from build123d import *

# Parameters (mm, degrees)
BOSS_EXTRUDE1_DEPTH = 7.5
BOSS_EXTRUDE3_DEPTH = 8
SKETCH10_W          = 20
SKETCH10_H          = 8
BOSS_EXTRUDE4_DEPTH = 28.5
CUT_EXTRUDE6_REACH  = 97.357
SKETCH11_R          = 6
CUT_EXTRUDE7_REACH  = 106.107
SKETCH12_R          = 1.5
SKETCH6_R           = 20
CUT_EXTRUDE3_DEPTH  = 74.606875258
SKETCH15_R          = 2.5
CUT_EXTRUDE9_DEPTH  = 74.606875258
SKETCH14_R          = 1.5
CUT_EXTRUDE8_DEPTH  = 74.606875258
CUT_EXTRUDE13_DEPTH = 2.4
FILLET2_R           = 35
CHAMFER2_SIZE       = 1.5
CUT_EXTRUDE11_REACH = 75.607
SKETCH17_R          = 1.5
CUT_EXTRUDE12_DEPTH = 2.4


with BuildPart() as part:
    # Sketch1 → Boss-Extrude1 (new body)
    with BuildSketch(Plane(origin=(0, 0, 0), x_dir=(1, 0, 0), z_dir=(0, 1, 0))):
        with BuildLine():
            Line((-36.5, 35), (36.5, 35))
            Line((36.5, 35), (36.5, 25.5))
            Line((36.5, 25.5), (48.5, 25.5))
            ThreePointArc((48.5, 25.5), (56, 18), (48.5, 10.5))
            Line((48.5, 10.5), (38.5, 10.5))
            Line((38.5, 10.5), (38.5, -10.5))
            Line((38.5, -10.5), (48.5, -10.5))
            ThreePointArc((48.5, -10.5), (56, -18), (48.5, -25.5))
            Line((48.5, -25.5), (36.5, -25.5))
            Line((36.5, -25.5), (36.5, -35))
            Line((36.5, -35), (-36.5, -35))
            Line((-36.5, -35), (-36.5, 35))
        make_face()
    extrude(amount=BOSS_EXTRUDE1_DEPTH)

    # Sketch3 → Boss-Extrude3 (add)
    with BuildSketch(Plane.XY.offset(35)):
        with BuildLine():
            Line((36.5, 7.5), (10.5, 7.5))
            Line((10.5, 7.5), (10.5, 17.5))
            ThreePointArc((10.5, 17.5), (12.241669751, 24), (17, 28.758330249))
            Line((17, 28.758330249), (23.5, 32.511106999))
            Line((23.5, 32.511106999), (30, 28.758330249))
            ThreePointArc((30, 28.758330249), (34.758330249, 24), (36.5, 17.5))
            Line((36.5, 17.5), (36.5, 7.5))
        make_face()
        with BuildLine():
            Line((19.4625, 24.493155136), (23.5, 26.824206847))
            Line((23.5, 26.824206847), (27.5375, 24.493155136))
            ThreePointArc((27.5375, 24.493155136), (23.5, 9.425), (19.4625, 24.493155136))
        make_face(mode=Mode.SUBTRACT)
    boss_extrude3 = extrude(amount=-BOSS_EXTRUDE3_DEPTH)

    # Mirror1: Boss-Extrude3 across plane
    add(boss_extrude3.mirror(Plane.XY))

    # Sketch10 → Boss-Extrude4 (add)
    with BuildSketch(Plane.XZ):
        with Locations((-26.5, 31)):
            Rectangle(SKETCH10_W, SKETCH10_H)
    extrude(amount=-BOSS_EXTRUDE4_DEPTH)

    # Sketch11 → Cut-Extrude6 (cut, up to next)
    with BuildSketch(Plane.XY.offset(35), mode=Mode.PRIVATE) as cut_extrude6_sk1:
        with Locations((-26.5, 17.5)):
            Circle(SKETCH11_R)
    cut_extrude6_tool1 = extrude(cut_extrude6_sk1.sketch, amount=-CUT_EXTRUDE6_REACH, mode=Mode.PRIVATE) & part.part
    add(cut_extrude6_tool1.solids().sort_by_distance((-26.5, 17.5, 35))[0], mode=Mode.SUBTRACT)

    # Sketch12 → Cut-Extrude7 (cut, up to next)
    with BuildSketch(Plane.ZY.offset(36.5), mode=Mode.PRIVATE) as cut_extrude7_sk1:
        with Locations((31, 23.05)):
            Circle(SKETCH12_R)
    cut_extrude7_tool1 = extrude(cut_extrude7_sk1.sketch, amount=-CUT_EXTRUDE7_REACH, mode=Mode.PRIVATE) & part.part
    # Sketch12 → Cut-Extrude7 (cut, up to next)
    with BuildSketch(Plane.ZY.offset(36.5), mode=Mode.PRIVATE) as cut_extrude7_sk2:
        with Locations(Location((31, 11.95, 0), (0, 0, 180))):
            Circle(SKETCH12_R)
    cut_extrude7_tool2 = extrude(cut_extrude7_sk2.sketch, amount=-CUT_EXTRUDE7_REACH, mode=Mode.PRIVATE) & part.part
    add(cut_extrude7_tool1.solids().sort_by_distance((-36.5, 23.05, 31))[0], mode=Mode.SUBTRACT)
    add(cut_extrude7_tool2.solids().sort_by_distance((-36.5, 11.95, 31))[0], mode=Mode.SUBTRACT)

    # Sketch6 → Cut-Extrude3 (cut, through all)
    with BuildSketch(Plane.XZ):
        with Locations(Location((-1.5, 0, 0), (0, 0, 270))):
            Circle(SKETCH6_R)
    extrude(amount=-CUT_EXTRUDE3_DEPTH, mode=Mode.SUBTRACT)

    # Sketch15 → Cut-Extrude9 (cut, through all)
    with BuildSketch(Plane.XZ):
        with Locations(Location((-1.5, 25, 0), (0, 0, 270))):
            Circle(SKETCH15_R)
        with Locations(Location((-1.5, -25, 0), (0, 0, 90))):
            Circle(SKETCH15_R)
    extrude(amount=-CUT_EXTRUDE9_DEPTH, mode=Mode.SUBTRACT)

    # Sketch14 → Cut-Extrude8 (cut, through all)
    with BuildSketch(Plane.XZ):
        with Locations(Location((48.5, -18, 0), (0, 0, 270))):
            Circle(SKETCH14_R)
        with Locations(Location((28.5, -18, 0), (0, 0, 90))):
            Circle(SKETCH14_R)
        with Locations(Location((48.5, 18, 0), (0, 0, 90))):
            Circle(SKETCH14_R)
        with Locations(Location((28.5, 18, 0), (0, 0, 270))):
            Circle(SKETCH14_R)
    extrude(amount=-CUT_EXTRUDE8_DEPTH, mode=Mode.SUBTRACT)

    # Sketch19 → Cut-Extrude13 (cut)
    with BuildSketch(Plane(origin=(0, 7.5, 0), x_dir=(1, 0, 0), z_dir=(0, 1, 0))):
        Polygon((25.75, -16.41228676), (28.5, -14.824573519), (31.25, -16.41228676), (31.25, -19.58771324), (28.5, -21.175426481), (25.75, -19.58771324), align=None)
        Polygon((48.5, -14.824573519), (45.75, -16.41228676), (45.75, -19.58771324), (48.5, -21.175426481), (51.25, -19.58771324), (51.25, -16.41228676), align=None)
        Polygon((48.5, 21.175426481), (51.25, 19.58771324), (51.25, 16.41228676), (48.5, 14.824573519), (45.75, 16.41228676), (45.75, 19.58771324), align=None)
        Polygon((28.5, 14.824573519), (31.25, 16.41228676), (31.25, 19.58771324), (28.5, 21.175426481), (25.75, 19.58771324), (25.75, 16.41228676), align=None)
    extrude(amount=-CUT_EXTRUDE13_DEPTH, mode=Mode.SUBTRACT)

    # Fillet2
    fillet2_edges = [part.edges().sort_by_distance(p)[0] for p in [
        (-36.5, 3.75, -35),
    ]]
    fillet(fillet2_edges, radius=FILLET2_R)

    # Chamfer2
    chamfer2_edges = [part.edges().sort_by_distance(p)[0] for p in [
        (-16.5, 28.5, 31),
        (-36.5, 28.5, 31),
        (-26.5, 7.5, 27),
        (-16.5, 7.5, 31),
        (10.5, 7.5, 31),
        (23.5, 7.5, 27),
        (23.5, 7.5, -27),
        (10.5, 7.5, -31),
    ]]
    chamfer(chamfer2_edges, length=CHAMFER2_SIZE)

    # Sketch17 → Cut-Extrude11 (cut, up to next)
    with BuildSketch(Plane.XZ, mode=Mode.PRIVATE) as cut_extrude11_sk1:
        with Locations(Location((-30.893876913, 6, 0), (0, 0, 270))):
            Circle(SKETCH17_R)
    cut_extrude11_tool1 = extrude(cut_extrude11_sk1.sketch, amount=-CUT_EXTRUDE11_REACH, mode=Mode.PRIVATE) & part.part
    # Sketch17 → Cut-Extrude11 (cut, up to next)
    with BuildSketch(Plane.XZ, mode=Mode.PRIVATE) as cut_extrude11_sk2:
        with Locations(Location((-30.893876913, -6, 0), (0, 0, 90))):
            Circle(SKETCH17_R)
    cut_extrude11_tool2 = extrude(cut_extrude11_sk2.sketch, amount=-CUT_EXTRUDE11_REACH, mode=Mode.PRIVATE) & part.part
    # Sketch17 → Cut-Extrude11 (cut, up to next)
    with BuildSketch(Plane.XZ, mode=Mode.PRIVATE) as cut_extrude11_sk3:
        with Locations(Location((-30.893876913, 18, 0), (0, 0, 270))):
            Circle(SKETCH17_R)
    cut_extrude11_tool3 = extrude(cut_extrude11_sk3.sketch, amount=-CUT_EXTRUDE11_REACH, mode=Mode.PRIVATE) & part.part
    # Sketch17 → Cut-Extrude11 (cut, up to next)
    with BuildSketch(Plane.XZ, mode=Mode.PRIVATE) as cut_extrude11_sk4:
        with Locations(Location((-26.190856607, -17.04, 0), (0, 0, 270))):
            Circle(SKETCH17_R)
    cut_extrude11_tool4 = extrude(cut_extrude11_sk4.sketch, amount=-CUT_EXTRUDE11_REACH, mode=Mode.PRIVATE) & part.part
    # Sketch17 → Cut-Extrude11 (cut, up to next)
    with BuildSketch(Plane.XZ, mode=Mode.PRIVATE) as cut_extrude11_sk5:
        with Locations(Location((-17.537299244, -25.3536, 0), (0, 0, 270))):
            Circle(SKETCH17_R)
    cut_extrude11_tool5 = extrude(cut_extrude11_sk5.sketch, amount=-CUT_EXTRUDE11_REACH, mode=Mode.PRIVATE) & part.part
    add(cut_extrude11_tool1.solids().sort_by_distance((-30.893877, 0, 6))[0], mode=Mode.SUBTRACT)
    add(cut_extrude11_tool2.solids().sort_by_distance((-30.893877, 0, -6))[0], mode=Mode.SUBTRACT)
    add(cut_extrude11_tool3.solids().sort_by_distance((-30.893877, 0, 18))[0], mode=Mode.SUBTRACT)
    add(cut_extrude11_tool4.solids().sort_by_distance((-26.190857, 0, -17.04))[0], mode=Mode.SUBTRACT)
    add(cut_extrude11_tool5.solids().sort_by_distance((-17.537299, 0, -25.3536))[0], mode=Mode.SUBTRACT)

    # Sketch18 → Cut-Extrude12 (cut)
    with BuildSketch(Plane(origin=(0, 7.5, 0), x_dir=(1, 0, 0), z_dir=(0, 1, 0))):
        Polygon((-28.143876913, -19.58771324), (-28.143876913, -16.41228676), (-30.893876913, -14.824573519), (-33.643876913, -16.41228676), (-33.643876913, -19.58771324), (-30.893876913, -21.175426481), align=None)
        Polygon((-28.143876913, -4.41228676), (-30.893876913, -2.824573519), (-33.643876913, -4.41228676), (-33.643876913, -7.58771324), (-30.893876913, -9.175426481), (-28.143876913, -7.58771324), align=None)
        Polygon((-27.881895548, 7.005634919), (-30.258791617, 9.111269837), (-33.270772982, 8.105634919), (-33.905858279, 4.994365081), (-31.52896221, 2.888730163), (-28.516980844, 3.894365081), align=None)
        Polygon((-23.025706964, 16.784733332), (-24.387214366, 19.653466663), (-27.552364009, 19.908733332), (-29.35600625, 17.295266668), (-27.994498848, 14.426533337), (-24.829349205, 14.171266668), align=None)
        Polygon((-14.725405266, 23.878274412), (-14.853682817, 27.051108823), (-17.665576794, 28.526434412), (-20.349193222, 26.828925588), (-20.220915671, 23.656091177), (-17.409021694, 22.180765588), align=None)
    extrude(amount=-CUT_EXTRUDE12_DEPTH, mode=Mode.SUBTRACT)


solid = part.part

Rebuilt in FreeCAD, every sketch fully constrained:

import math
import FreeCAD as App
import Part
import Sketcher
Q = App.Units.Quantity


def edges_at(feature, points):
    """Names of the edges that pass closest to the given points."""
    edges = feature.Shape.Edges
    near = lambda p: min(range(len(edges)), key=lambda i: edges[i].distToShape(Part.Vertex(*p))[0])
    return sorted({f"Edge{near(p) + 1}" for p in points})

doc = App.newDocument("Part")
params = doc.addObject("Spreadsheet::Sheet", "Params")
for row, (alias, value) in enumerate([
    ("sketch1_radius", "7.5 mm"),
    ("sketch1_width", "73 mm"),
    ("sketch1_width2", "12 mm"),
    ("sketch1_width3", "10 mm"),
    ("sketch1_height", "70 mm"),
    ("pad1_length", "7.5 mm"),
    ("sketch2_radius", "13 mm"),
    ("sketch2_height", "10 mm"),
    ("pad2_length", "8 mm"),
    ("sketch3_width", "20 mm"),
    ("sketch3_height", "8 mm"),
    ("pad3_length", "28.5 mm"),
    ("sketch4_diameter", "12 mm"),
    ("sketch5_diameter", "3 mm"),
    ("pocket2_length", "20 mm"),
    ("sketch6_diameter", "3 mm"),
    ("pocket3_length", "20 mm"),
    ("sketch7_diameter", "40 mm"),
    ("sketch8_diameter", "5 mm"),
    ("sketch9_diameter", "3 mm"),
    ("pocket7_length", "2.4 mm"),
    ("fillet_radius", "35 mm"),
    ("chamfer_size", "1.5 mm"),
    ("sketch11_diameter", "3 mm"),
    ("sketch12_diameter", "3 mm"),
    ("sketch13_diameter", "3 mm"),
    ("sketch14_diameter", "3 mm"),
    ("sketch15_diameter", "3 mm"),
    ("pocket13_length", "2.4 mm"),
], start=1):
    params.set(f"A{row}", alias)
    params.set(f"B{row}", "=" + value)
    params.setAlias(f"B{row}", alias)

body = doc.addObject("PartDesign::Body", "Body")

sketch1 = body.newObject("Sketcher::SketchObject", "Sketch")
sketch1.AttachmentSupport = (doc.getObject("XZ_Plane"), [""])
sketch1.MapMode = "FlatFace"
sketch1.addGeometry([
    Part.LineSegment(App.Vector(36.5, -35, 0), App.Vector(-36.5, -35, 0)),
    Part.LineSegment(App.Vector(-36.5, -35, 0), App.Vector(-36.5, 35, 0)),
    Part.LineSegment(App.Vector(-36.5, 35, 0), App.Vector(36.5, 35, 0)),
    Part.LineSegment(App.Vector(36.5, 35, 0), App.Vector(36.5, 25.5, 0)),
    Part.LineSegment(App.Vector(36.5, 25.5, 0), App.Vector(48.5, 25.5, 0)),
    Part.ArcOfCircle(Part.Circle(App.Vector(48.5, 18, 0), App.Vector(0, 0, 1), 7.5), math.radians(-90), math.radians(90)),
    Part.LineSegment(App.Vector(48.5, 10.5, 0), App.Vector(38.5, 10.5, 0)),
    Part.LineSegment(App.Vector(38.5, 10.5, 0), App.Vector(38.5, -10.5, 0)),
    Part.LineSegment(App.Vector(38.5, -10.5, 0), App.Vector(48.5, -10.5, 0)),
    Part.ArcOfCircle(Part.Circle(App.Vector(48.5, -18, 0), App.Vector(0, 0, 1), 7.5), math.radians(-90), math.radians(90)),
    Part.LineSegment(App.Vector(48.5, -25.5, 0), App.Vector(36.5, -25.5, 0)),
    Part.LineSegment(App.Vector(36.5, -25.5, 0), App.Vector(36.5, -35, 0)),
], False)
sketch1.addConstraint([
    Sketcher.Constraint("Coincident", 0, 2, 1, 1),
    Sketcher.Constraint("Coincident", 1, 2, 2, 1),
    Sketcher.Constraint("Coincident", 2, 2, 3, 1),
    Sketcher.Constraint("Coincident", 3, 2, 4, 1),
    Sketcher.Constraint("Tangent", 4, 2, 5, 2),
    Sketcher.Constraint("Tangent", 5, 1, 6, 1),
    Sketcher.Constraint("Coincident", 6, 2, 7, 1),
    Sketcher.Constraint("Coincident", 7, 2, 8, 1),
    Sketcher.Constraint("Tangent", 8, 2, 9, 2),
    Sketcher.Constraint("Tangent", 9, 1, 10, 1),
    Sketcher.Constraint("Coincident", 10, 2, 11, 1),
    Sketcher.Constraint("Coincident", 11, 2, 0, 1),
    Sketcher.Constraint("Horizontal", 0),
    Sketcher.Constraint("Vertical", 1),
    Sketcher.Constraint("Horizontal", 2),
    Sketcher.Constraint("Vertical", 3),
    Sketcher.Constraint("Horizontal", 4),
    Sketcher.Constraint("Horizontal", 6),
    Sketcher.Constraint("Vertical", 7),
    Sketcher.Constraint("Horizontal", 8),
    Sketcher.Constraint("Horizontal", 10),
    Sketcher.Constraint("Vertical", 11),
    Sketcher.Constraint("Equal", 5, 9),
    Sketcher.Constraint("Symmetric", 0, 2, 2, 2, -1, 1),
    Sketcher.Constraint("Symmetric", 5, 3, 9, 3, -1),
    Sketcher.Constraint("Vertical", 3, 2, 10, 2),
    Sketcher.Constraint("Radius", 5, Q("7.5 mm")),
    Sketcher.Constraint("DistanceX", 0, 2, 0, 1, Q("73 mm")),
    Sketcher.Constraint("DistanceX", 4, 1, 4, 2, Q("12 mm")),
    Sketcher.Constraint("DistanceX", 6, 2, 6, 1, Q("10 mm")),
    Sketcher.Constraint("DistanceY", 1, 1, 1, 2, Q("70 mm")),
    Sketcher.Constraint("DistanceY", 7, 2, 7, 1, Q("21 mm")),
])
sketch1.setExpression("Constraints[26]", "Params.sketch1_radius")
sketch1.setExpression("Constraints[27]", "Params.sketch1_width")
sketch1.setExpression("Constraints[28]", "Params.sketch1_width2")
sketch1.setExpression("Constraints[29]", "Params.sketch1_width3")
sketch1.setExpression("Constraints[30]", "Params.sketch1_height")
pad1 = body.newObject("PartDesign::Pad", "Pad")
pad1.Profile = sketch1
pad1.setExpression("Length", "Params.pad1_length")
pad1.Reversed = True

sketch2 = body.newObject("Sketcher::SketchObject", "Sketch001")
sketch2.AttachmentSupport = (doc.getObject("XY_Plane"), [""])
sketch2.MapMode = "FlatFace"
sketch2.AttachmentOffset = App.Placement(App.Vector(0, 0, 35), App.Rotation())
sketch2.addGeometry([
    Part.LineSegment(App.Vector(10.5, 7.5, 0), App.Vector(36.5, 7.5, 0)),
    Part.LineSegment(App.Vector(36.5, 7.5, 0), App.Vector(36.5, 17.5, 0)),
    Part.ArcOfCircle(Part.Circle(App.Vector(23.5, 17.5, 0), App.Vector(0, 0, 1), 13), math.radians(0), math.radians(60)),
    Part.LineSegment(App.Vector(30, 28.75833, 0), App.Vector(23.5, 32.511107, 0)),
    Part.LineSegment(App.Vector(23.5, 32.511107, 0), App.Vector(17, 28.75833, 0)),
    Part.ArcOfCircle(Part.Circle(App.Vector(23.5, 17.5, 0), App.Vector(0, 0, 1), 13), math.radians(120), math.radians(180)),
    Part.LineSegment(App.Vector(10.5, 17.5, 0), App.Vector(10.5, 7.5, 0)),
    Part.LineSegment(App.Vector(19.4625, 24.493155, 0), App.Vector(23.5, 26.824207, 0)),
    Part.LineSegment(App.Vector(23.5, 26.824207, 0), App.Vector(27.5375, 24.493155, 0)),
    Part.ArcOfCircle(Part.Circle(App.Vector(23.5, 17.5, 0), App.Vector(0, 0, 1), 8.075), math.radians(120), math.radians(420)),
], False)
sketch2.addConstraint([
    Sketcher.Constraint("Coincident", 0, 2, 1, 1),
    Sketcher.Constraint("Tangent", 1, 2, 2, 1),
    Sketcher.Constraint("Tangent", 2, 2, 3, 1),
    Sketcher.Constraint("Coincident", 3, 2, 4, 1),
    Sketcher.Constraint("Tangent", 4, 2, 5, 1),
    Sketcher.Constraint("Tangent", 5, 2, 6, 1),
    Sketcher.Constraint("Coincident", 6, 2, 0, 1),
    Sketcher.Constraint("Coincident", 7, 2, 8, 1),
    Sketcher.Constraint("Tangent", 8, 2, 9, 2),
    Sketcher.Constraint("Tangent", 9, 1, 7, 1),
    Sketcher.Constraint("Horizontal", 0),
    Sketcher.Constraint("Vertical", 1),
    Sketcher.Constraint("Vertical", 6),
    Sketcher.Constraint("Coincident", 5, 3, 2, 3),
    Sketcher.Constraint("Coincident", 9, 3, 2, 3),
    Sketcher.Constraint("Equal", 2, 5),
    Sketcher.Constraint("Parallel", 4, 7),
    Sketcher.Constraint("Parallel", 3, 8),
    Sketcher.Constraint("Horizontal", 2, 2, 4, 2),
    Sketcher.Constraint("Radius", 2, Q("13 mm")),
    Sketcher.Constraint("DistanceY", 1, 1, 1, 2, Q("10 mm")),
    Sketcher.Constraint("Angle", 3, Q("150 deg")),
    Sketcher.Constraint("DistanceX", -1, 1, 2, 2, Q("30 mm")),
    Sketcher.Constraint("Radius", 9, Q("8.075 mm")),
    Sketcher.Constraint("DistanceY", -1, 1, 2, 3, Q("17.5 mm")),
])
sketch2.setExpression("Constraints[19]", "Params.sketch2_radius")
sketch2.setExpression("Constraints[20]", "Params.sketch2_height")
pad2 = body.newObject("PartDesign::Pad", "Pad001")
pad2.Profile = sketch2
pad2.setExpression("Length", "Params.pad2_length")
pad2.Reversed = True
doc.recompute()

mirrored = body.newObject("PartDesign::Mirrored", "Mirrored")
mirrored.Originals = [pad2]
mirrored.MirrorPlane = (doc.getObject("XY_Plane"), [""])
body.Tip = mirrored

sketch3 = body.newObject("Sketcher::SketchObject", "Sketch002")
sketch3.AttachmentSupport = (doc.getObject("XZ_Plane"), [""])
sketch3.MapMode = "FlatFace"
sketch3.addGeometry([
    Part.LineSegment(App.Vector(-36.5, 35, 0), App.Vector(-36.5, 27, 0)),
    Part.LineSegment(App.Vector(-36.5, 27, 0), App.Vector(-16.5, 27, 0)),
    Part.LineSegment(App.Vector(-16.5, 27, 0), App.Vector(-16.5, 35, 0)),
    Part.LineSegment(App.Vector(-16.5, 35, 0), App.Vector(-36.5, 35, 0)),
], False)
sketch3.addConstraint([
    Sketcher.Constraint("Coincident", 0, 2, 1, 1),
    Sketcher.Constraint("Coincident", 1, 2, 2, 1),
    Sketcher.Constraint("Coincident", 2, 2, 3, 1),
    Sketcher.Constraint("Coincident", 3, 2, 0, 1),
    Sketcher.Constraint("Vertical", 0),
    Sketcher.Constraint("Horizontal", 1),
    Sketcher.Constraint("Vertical", 2),
    Sketcher.Constraint("Horizontal", 3),
    Sketcher.Constraint("DistanceX", 1, 1, 1, 2, Q("20 mm")),
    Sketcher.Constraint("DistanceY", 0, 2, 0, 1, Q("8 mm")),
    Sketcher.Constraint("DistanceY", -1, 1, 0, 2, Q("27 mm")),
    Sketcher.Constraint("DistanceX", 0, 2, -1, 1, Q("36.5 mm")),
])
sketch3.setExpression("Constraints[8]", "Params.sketch3_width")
sketch3.setExpression("Constraints[9]", "Params.sketch3_height")
pad3 = body.newObject("PartDesign::Pad", "Pad002")
pad3.Profile = sketch3
pad3.setExpression("Length", "Params.pad3_length")
pad3.Reversed = True

sketch4 = body.newObject("Sketcher::SketchObject", "Sketch003")
sketch4.AttachmentSupport = (doc.getObject("XY_Plane"), [""])
sketch4.MapMode = "FlatFace"
sketch4.AttachmentOffset = App.Placement(App.Vector(0, 0, 35), App.Rotation())
sketch4.addGeometry(Part.Circle(App.Vector(-26.5, 17.5, 0), App.Vector(0, 0, 1), 6), False)
sketch4.addConstraint([
    Sketcher.Constraint("Diameter", 0, Q("12 mm")),
    Sketcher.Constraint("DistanceX", 0, 3, -1, 1, Q("26.5 mm")),
    Sketcher.Constraint("DistanceY", -1, 1, 0, 3, Q("17.5 mm")),
])
sketch4.setExpression("Constraints[0]", "Params.sketch4_diameter")
pocket1 = body.newObject("PartDesign::Pocket", "Pocket")
pocket1.Profile = sketch4
pocket1.Type = "UpToFirst"

sketch5 = body.newObject("Sketcher::SketchObject", "Sketch004")
sketch5.AttachmentSupport = (doc.getObject("YZ_Plane"), [""])
sketch5.MapMode = "FlatFace"
sketch5.AttachmentOffset = App.Placement(App.Vector(0, 0, -36.5), App.Rotation())
sketch5.addGeometry(Part.Circle(App.Vector(23.05, 31, 0), App.Vector(0, 0, 1), 1.5), False)
sketch5.addConstraint([
    Sketcher.Constraint("Diameter", 0, Q("3 mm")),
    Sketcher.Constraint("DistanceY", -1, 1, 0, 3, Q("31 mm")),
    Sketcher.Constraint("DistanceX", -1, 1, 0, 3, Q("23.05 mm")),
])
sketch5.setExpression("Constraints[0]", "Params.sketch5_diameter")
pocket2 = body.newObject("PartDesign::Pocket", "Pocket001")
pocket2.Profile = sketch5
pocket2.setExpression("Length", "Params.pocket2_length")
pocket2.Reversed = True

sketch6 = body.newObject("Sketcher::SketchObject", "Sketch005")
sketch6.AttachmentSupport = (doc.getObject("YZ_Plane"), [""])
sketch6.MapMode = "FlatFace"
sketch6.AttachmentOffset = App.Placement(App.Vector(0, 0, -36.5), App.Rotation())
sketch6.addGeometry(Part.Circle(App.Vector(11.95, 31, 0), App.Vector(0, 0, 1), 1.5), False)
sketch6.addConstraint([
    Sketcher.Constraint("Diameter", 0, Q("3 mm")),
    Sketcher.Constraint("DistanceY", -1, 1, 0, 3, Q("31 mm")),
    Sketcher.Constraint("DistanceX", -1, 1, 0, 3, Q("11.95 mm")),
])
sketch6.setExpression("Constraints[0]", "Params.sketch6_diameter")
pocket3 = body.newObject("PartDesign::Pocket", "Pocket002")
pocket3.Profile = sketch6
pocket3.setExpression("Length", "Params.pocket3_length")
pocket3.Reversed = True

sketch7 = body.newObject("Sketcher::SketchObject", "Sketch006")
sketch7.AttachmentSupport = (doc.getObject("XZ_Plane"), [""])
sketch7.MapMode = "FlatFace"
sketch7.addGeometry(Part.Circle(App.Vector(-1.5, 0, 0), App.Vector(0, 0, 1), 20), False)
sketch7.addConstraint([
    Sketcher.Constraint("PointOnObject", 0, 3, -1),
    Sketcher.Constraint("Diameter", 0, Q("40 mm")),
    Sketcher.Constraint("DistanceX", 0, 3, -1, 1, Q("1.5 mm")),
])
sketch7.setExpression("Constraints[1]", "Params.sketch7_diameter")
pocket4 = body.newObject("PartDesign::Pocket", "Pocket003")
pocket4.Profile = sketch7
pocket4.Type = "ThroughAll"

sketch8 = body.newObject("Sketcher::SketchObject", "Sketch007")
sketch8.AttachmentSupport = (doc.getObject("XZ_Plane"), [""])
sketch8.MapMode = "FlatFace"
sketch8.addGeometry([
    Part.Circle(App.Vector(-1.5, 25, 0), App.Vector(0, 0, 1), 2.5),
    Part.Circle(App.Vector(-1.5, -25, 0), App.Vector(0, 0, 1), 2.5),
], False)
sketch8.addConstraint([
    Sketcher.Constraint("Equal", 0, 1),
    Sketcher.Constraint("Symmetric", 0, 3, 1, 3, -1),
    Sketcher.Constraint("Diameter", 0, Q("5 mm")),
    Sketcher.Constraint("DistanceY", -1, 1, 0, 3, Q("25 mm")),
    Sketcher.Constraint("DistanceX", 0, 3, -1, 1, Q("1.5 mm")),
])
sketch8.setExpression("Constraints[2]", "Params.sketch8_diameter")
pocket5 = body.newObject("PartDesign::Pocket", "Pocket004")
pocket5.Profile = sketch8
pocket5.Type = "ThroughAll"

sketch9 = body.newObject("Sketcher::SketchObject", "Sketch008")
sketch9.AttachmentSupport = (doc.getObject("XZ_Plane"), [""])
sketch9.MapMode = "FlatFace"
sketch9.addGeometry([
    Part.Circle(App.Vector(48.5, -18, 0), App.Vector(0, 0, 1), 1.5),
    Part.Circle(App.Vector(28.5, -18, 0), App.Vector(0, 0, 1), 1.5),
    Part.Circle(App.Vector(48.5, 18, 0), App.Vector(0, 0, 1), 1.5),
    Part.Circle(App.Vector(28.5, 18, 0), App.Vector(0, 0, 1), 1.5),
], False)
sketch9.addConstraint([
    Sketcher.Constraint("Equal", 0, 1),
    Sketcher.Constraint("Equal", 1, 2),
    Sketcher.Constraint("Equal", 2, 3),
    Sketcher.Constraint("Symmetric", 0, 3, 2, 3, -1),
    Sketcher.Constraint("Symmetric", 1, 3, 3, 3, -1),
    Sketcher.Constraint("Horizontal", 0, 3, 1, 3),
    Sketcher.Constraint("Diameter", 0, Q("3 mm")),
    Sketcher.Constraint("DistanceY", 0, 3, -1, 1, Q("18 mm")),
    Sketcher.Constraint("DistanceX", 1, 3, 0, 3, Q("20 mm")),
    Sketcher.Constraint("DistanceX", -1, 1, 0, 3, Q("48.5 mm")),
])
sketch9.setExpression("Constraints[6]", "Params.sketch9_diameter")
pocket6 = body.newObject("PartDesign::Pocket", "Pocket005")
pocket6.Profile = sketch9
pocket6.Type = "ThroughAll"

sketch10 = body.newObject("Sketcher::SketchObject", "Sketch009")
sketch10.AttachmentSupport = (doc.getObject("XZ_Plane"), [""])
sketch10.MapMode = "FlatFace"
sketch10.AttachmentOffset = App.Placement(App.Vector(0, 0, -7.5), App.Rotation())
sketch10.addGeometry([
    Part.LineSegment(App.Vector(28.5, 14.824574, 0), App.Vector(25.75, 16.412287, 0)),
    Part.LineSegment(App.Vector(25.75, 16.412287, 0), App.Vector(25.75, 19.587713, 0)),
    Part.LineSegment(App.Vector(25.75, 19.587713, 0), App.Vector(28.5, 21.175426, 0)),
    Part.LineSegment(App.Vector(28.5, 21.175426, 0), App.Vector(31.25, 19.587713, 0)),
    Part.LineSegment(App.Vector(31.25, 19.587713, 0), App.Vector(31.25, 16.412287, 0)),
    Part.LineSegment(App.Vector(31.25, 16.412287, 0), App.Vector(28.5, 14.824574, 0)),
    Part.LineSegment(App.Vector(48.5, 14.824574, 0), App.Vector(45.75, 16.412287, 0)),
    Part.LineSegment(App.Vector(45.75, 16.412287, 0), App.Vector(45.75, 19.587713, 0)),
    Part.LineSegment(App.Vector(45.75, 19.587713, 0), App.Vector(48.5, 21.175426, 0)),
    Part.LineSegment(App.Vector(48.5, 21.175426, 0), App.Vector(51.25, 19.587713, 0)),
    Part.LineSegment(App.Vector(51.25, 19.587713, 0), App.Vector(51.25, 16.412287, 0)),
    Part.LineSegment(App.Vector(51.25, 16.412287, 0), App.Vector(48.5, 14.824574, 0)),
    Part.LineSegment(App.Vector(51.25, -19.587713, 0), App.Vector(48.5, -21.175426, 0)),
    Part.LineSegment(App.Vector(48.5, -21.175426, 0), App.Vector(45.75, -19.587713, 0)),
    Part.LineSegment(App.Vector(45.75, -19.587713, 0), App.Vector(45.75, -16.412287, 0)),
    Part.LineSegment(App.Vector(45.75, -16.412287, 0), App.Vector(48.5, -14.824574, 0)),
    Part.LineSegment(App.Vector(48.5, -14.824574, 0), App.Vector(51.25, -16.412287, 0)),
    Part.LineSegment(App.Vector(51.25, -16.412287, 0), App.Vector(51.25, -19.587713, 0)),
    Part.LineSegment(App.Vector(28.5, -14.824574, 0), App.Vector(31.25, -16.412287, 0)),
    Part.LineSegment(App.Vector(31.25, -16.412287, 0), App.Vector(31.25, -19.587713, 0)),
    Part.LineSegment(App.Vector(31.25, -19.587713, 0), App.Vector(28.5, -21.175426, 0)),
    Part.LineSegment(App.Vector(28.5, -21.175426, 0), App.Vector(25.75, -19.587713, 0)),
    Part.LineSegment(App.Vector(25.75, -19.587713, 0), App.Vector(25.75, -16.412287, 0)),
    Part.LineSegment(App.Vector(25.75, -16.412287, 0), App.Vector(28.5, -14.824574, 0)),
], False)
sketch10.addConstraint([
    Sketcher.Constraint("Coincident", 0, 2, 1, 1),
    Sketcher.Constraint("Coincident", 1, 2, 2, 1),
    Sketcher.Constraint("Coincident", 2, 2, 3, 1),
    Sketcher.Constraint("Coincident", 3, 2, 4, 1),
    Sketcher.Constraint("Coincident", 4, 2, 5, 1),
    Sketcher.Constraint("Coincident", 5, 2, 0, 1),
    Sketcher.Constraint("Coincident", 6, 2, 7, 1),
    Sketcher.Constraint("Coincident", 7, 2, 8, 1),
    Sketcher.Constraint("Coincident", 8, 2, 9, 1),
    Sketcher.Constraint("Coincident", 9, 2, 10, 1),
    Sketcher.Constraint("Coincident", 10, 2, 11, 1),
    Sketcher.Constraint("Coincident", 11, 2, 6, 1),
    Sketcher.Constraint("Coincident", 12, 2, 13, 1),
    Sketcher.Constraint("Coincident", 13, 2, 14, 1),
    Sketcher.Constraint("Coincident", 14, 2, 15, 1),
    Sketcher.Constraint("Coincident", 15, 2, 16, 1),
    Sketcher.Constraint("Coincident", 16, 2, 17, 1),
    Sketcher.Constraint("Coincident", 17, 2, 12, 1),
    Sketcher.Constraint("Coincident", 18, 2, 19, 1),
    Sketcher.Constraint("Coincident", 19, 2, 20, 1),
    Sketcher.Constraint("Coincident", 20, 2, 21, 1),
    Sketcher.Constraint("Coincident", 21, 2, 22, 1),
    Sketcher.Constraint("Coincident", 22, 2, 23, 1),
    Sketcher.Constraint("Coincident", 23, 2, 18, 1),
    Sketcher.Constraint("Vertical", 1),
    Sketcher.Constraint("Vertical", 4),
    Sketcher.Constraint("Vertical", 7),
    Sketcher.Constraint("Vertical", 10),
    Sketcher.Constraint("Vertical", 14),
    Sketcher.Constraint("Vertical", 17),
    Sketcher.Constraint("Vertical", 19),
    Sketcher.Constraint("Vertical", 22),
    Sketcher.Constraint("Symmetric", 8, 2, 12, 2, -1),
    Sketcher.Constraint("Symmetric", 7, 2, 13, 2, -1),
    Sketcher.Constraint("Symmetric", 11, 2, 15, 2, -1),
    Sketcher.Constraint("Symmetric", 10, 2, 16, 2, -1),
    Sketcher.Constraint("Symmetric", 4, 2, 18, 2, -1),
    Sketcher.Constraint("Symmetric", 2, 2, 20, 2, -1),
    Sketcher.Constraint("Symmetric", 1, 2, 21, 2, -1),
    Sketcher.Constraint("Symmetric", 5, 2, 23, 2, -1),
    Sketcher.Constraint("Parallel", 0, 3),
    Sketcher.Constraint("Parallel", 2, 5),
    Sketcher.Constraint("Parallel", 3, 6),
    Sketcher.Constraint("Parallel", 5, 8),
    Sketcher.Constraint("Parallel", 6, 9),
    Sketcher.Constraint("Parallel", 8, 11),
    Sketcher.Constraint("Parallel", 11, 12),
    Sketcher.Constraint("Parallel", 9, 13),
    Sketcher.Constraint("Parallel", 12, 15),
    Sketcher.Constraint("Parallel", 15, 20),
    Sketcher.Constraint("Parallel", 20, 23),
    Sketcher.Constraint("Horizontal", 1, 2, 3, 2),
    Sketcher.Constraint("Horizontal", 0, 2, 4, 2),
    Sketcher.Constraint("Horizontal", 4, 2, 6, 2),
    Sketcher.Constraint("Horizontal", 3, 2, 7, 2),
    Sketcher.Constraint("Horizontal", 2, 2, 8, 2),
    Sketcher.Constraint("Horizontal", 7, 2, 9, 2),
    Sketcher.Constraint("Horizontal", 6, 2, 10, 2),
    Sketcher.Constraint("Angle", 0, Q("150 deg")),
    Sketcher.Constraint("DistanceX", 0, 2, 6, 2, Q("20 mm")),
    Sketcher.Constraint("DistanceY", 12, 2, 11, 2, Q("36 mm")),
    Sketcher.Constraint("DistanceX", -1, 1, 2, 2, Q("28.5 mm")),
    Sketcher.Constraint("DistanceX", 1, 2, 3, 2, Q("5.5 mm")),
    Sketcher.Constraint("DistanceY", 1, 1, 1, 2, Q("3.175426 mm")),
])
pocket7 = body.newObject("PartDesign::Pocket", "Pocket006")
pocket7.Profile = sketch10
pocket7.setExpression("Length", "Params.pocket7_length")
pocket7.Reversed = True
doc.recompute()

fillet = body.newObject("PartDesign::Fillet", "Fillet")
fillet.Base = (pocket7, edges_at(pocket7, [(-36.5, 3.75, -35)]))
fillet.setExpression("Radius", "Params.fillet_radius")
doc.recompute()

chamfer = body.newObject("PartDesign::Chamfer", "Chamfer")
chamfer.Base = (fillet, edges_at(fillet, [
    (-16.5, 28.5, 31),
    (-36.5, 28.5, 31),
    (-26.5, 7.5, 27),
    (-16.5, 7.5, 31),
    (10.5, 7.5, 31),
    (23.5, 7.5, 27),
    (23.5, 7.5, -27),
    (10.5, 7.5, -31),
]))
chamfer.setExpression("Size", "Params.chamfer_size")

sketch11 = body.newObject("Sketcher::SketchObject", "Sketch010")
sketch11.AttachmentSupport = (doc.getObject("XZ_Plane"), [""])
sketch11.MapMode = "FlatFace"
sketch11.addGeometry(Part.Circle(App.Vector(-30.893877, 6, 0), App.Vector(0, 0, 1), 1.5), False)
sketch11.addConstraint([
    Sketcher.Constraint("Diameter", 0, Q("3 mm")),
    Sketcher.Constraint("DistanceY", -1, 1, 0, 3, Q("6 mm")),
    Sketcher.Constraint("DistanceX", 0, 3, -1, 1, Q("30.893877 mm")),
])
sketch11.setExpression("Constraints[0]", "Params.sketch11_diameter")
pocket8 = body.newObject("PartDesign::Pocket", "Pocket007")
pocket8.Profile = sketch11
pocket8.Type = "UpToFirst"

sketch12 = body.newObject("Sketcher::SketchObject", "Sketch011")
sketch12.AttachmentSupport = (doc.getObject("XZ_Plane"), [""])
sketch12.MapMode = "FlatFace"
sketch12.addGeometry(Part.Circle(App.Vector(-30.893877, -6, 0), App.Vector(0, 0, 1), 1.5), False)
sketch12.addConstraint([
    Sketcher.Constraint("Diameter", 0, Q("3 mm")),
    Sketcher.Constraint("DistanceY", 0, 3, -1, 1, Q("6 mm")),
    Sketcher.Constraint("DistanceX", 0, 3, -1, 1, Q("30.893877 mm")),
])
sketch12.setExpression("Constraints[0]", "Params.sketch12_diameter")
pocket9 = body.newObject("PartDesign::Pocket", "Pocket008")
pocket9.Profile = sketch12
pocket9.Type = "UpToFirst"

sketch13 = body.newObject("Sketcher::SketchObject", "Sketch012")
sketch13.AttachmentSupport = (doc.getObject("XZ_Plane"), [""])
sketch13.MapMode = "FlatFace"
sketch13.addGeometry(Part.Circle(App.Vector(-30.893877, 18, 0), App.Vector(0, 0, 1), 1.5), False)
sketch13.addConstraint([
    Sketcher.Constraint("Diameter", 0, Q("3 mm")),
    Sketcher.Constraint("DistanceY", -1, 1, 0, 3, Q("18 mm")),
    Sketcher.Constraint("DistanceX", 0, 3, -1, 1, Q("30.893877 mm")),
])
sketch13.setExpression("Constraints[0]", "Params.sketch13_diameter")
pocket10 = body.newObject("PartDesign::Pocket", "Pocket009")
pocket10.Profile = sketch13
pocket10.Type = "UpToFirst"

sketch14 = body.newObject("Sketcher::SketchObject", "Sketch013")
sketch14.AttachmentSupport = (doc.getObject("XZ_Plane"), [""])
sketch14.MapMode = "FlatFace"
sketch14.addGeometry(Part.Circle(App.Vector(-26.190857, -17.04, 0), App.Vector(0, 0, 1), 1.5), False)
sketch14.addConstraint([
    Sketcher.Constraint("Diameter", 0, Q("3 mm")),
    Sketcher.Constraint("DistanceY", 0, 3, -1, 1, Q("17.04 mm")),
    Sketcher.Constraint("DistanceX", 0, 3, -1, 1, Q("26.190857 mm")),
])
sketch14.setExpression("Constraints[0]", "Params.sketch14_diameter")
pocket11 = body.newObject("PartDesign::Pocket", "Pocket010")
pocket11.Profile = sketch14
pocket11.Type = "UpToFirst"

sketch15 = body.newObject("Sketcher::SketchObject", "Sketch014")
sketch15.AttachmentSupport = (doc.getObject("XZ_Plane"), [""])
sketch15.MapMode = "FlatFace"
sketch15.addGeometry(Part.Circle(App.Vector(-17.537299, -25.3536, 0), App.Vector(0, 0, 1), 1.5), False)
sketch15.addConstraint([
    Sketcher.Constraint("Diameter", 0, Q("3 mm")),
    Sketcher.Constraint("DistanceX", 0, 3, -1, 1, Q("17.537299 mm")),
    Sketcher.Constraint("DistanceY", 0, 3, -1, 1, Q("25.3536 mm")),
])
sketch15.setExpression("Constraints[0]", "Params.sketch15_diameter")
pocket12 = body.newObject("PartDesign::Pocket", "Pocket011")
pocket12.Profile = sketch15
pocket12.Type = "UpToFirst"

sketch16 = body.newObject("Sketcher::SketchObject", "Sketch015")
sketch16.AttachmentSupport = (doc.getObject("XZ_Plane"), [""])
sketch16.MapMode = "FlatFace"
sketch16.AttachmentOffset = App.Placement(App.Vector(0, 0, -7.5), App.Rotation())
sketch16.addGeometry([
    Part.LineSegment(App.Vector(-28.143877, 19.587713, 0), App.Vector(-28.143877, 16.412287, 0)),
    Part.LineSegment(App.Vector(-28.143877, 16.412287, 0), App.Vector(-30.893877, 14.824574, 0)),
    Part.LineSegment(App.Vector(-30.893877, 14.824574, 0), App.Vector(-33.643877, 16.412287, 0)),
    Part.LineSegment(App.Vector(-33.643877, 16.412287, 0), App.Vector(-33.643877, 19.587713, 0)),
    Part.LineSegment(App.Vector(-33.643877, 19.587713, 0), App.Vector(-30.893877, 21.175426, 0)),
    Part.LineSegment(App.Vector(-30.893877, 21.175426, 0), App.Vector(-28.143877, 19.587713, 0)),
    Part.LineSegment(App.Vector(-28.143877, 4.412287, 0), App.Vector(-30.893877, 2.824574, 0)),
    Part.LineSegment(App.Vector(-30.893877, 2.824574, 0), App.Vector(-33.643877, 4.412287, 0)),
    Part.LineSegment(App.Vector(-33.643877, 4.412287, 0), App.Vector(-33.643877, 7.587713, 0)),
    Part.LineSegment(App.Vector(-33.643877, 7.587713, 0), App.Vector(-30.893877, 9.175426, 0)),
    Part.LineSegment(App.Vector(-30.893877, 9.175426, 0), App.Vector(-28.143877, 7.587713, 0)),
    Part.LineSegment(App.Vector(-28.143877, 7.587713, 0), App.Vector(-28.143877, 4.412287, 0)),
    Part.LineSegment(App.Vector(-27.881896, -7.005635, 0), App.Vector(-30.258792, -9.11127, 0)),
    Part.LineSegment(App.Vector(-30.258792, -9.11127, 0), App.Vector(-33.270773, -8.105635, 0)),
    Part.LineSegment(App.Vector(-33.270773, -8.105635, 0), App.Vector(-33.905858, -4.994365, 0)),
    Part.LineSegment(App.Vector(-33.905858, -4.994365, 0), App.Vector(-31.528962, -2.88873, 0)),
    Part.LineSegment(App.Vector(-31.528962, -2.88873, 0), App.Vector(-28.516981, -3.894365, 0)),
    Part.LineSegment(App.Vector(-28.516981, -3.894365, 0), App.Vector(-27.881896, -7.005635, 0)),
    Part.LineSegment(App.Vector(-23.025707, -16.784733, 0), App.Vector(-24.387214, -19.653467, 0)),
    Part.LineSegment(App.Vector(-24.387214, -19.653467, 0), App.Vector(-27.552364, -19.908733, 0)),
    Part.LineSegment(App.Vector(-27.552364, -19.908733, 0), App.Vector(-29.356006, -17.295267, 0)),
    Part.LineSegment(App.Vector(-29.356006, -17.295267, 0), App.Vector(-27.994499, -14.426533, 0)),
    Part.LineSegment(App.Vector(-27.994499, -14.426533, 0), App.Vector(-24.829349, -14.171267, 0)),
    Part.LineSegment(App.Vector(-24.829349, -14.171267, 0), App.Vector(-23.025707, -16.784733, 0)),
    Part.LineSegment(App.Vector(-14.725405, -23.878274, 0), App.Vector(-14.853683, -27.051109, 0)),
    Part.LineSegment(App.Vector(-14.853683, -27.051109, 0), App.Vector(-17.665577, -28.526434, 0)),
    Part.LineSegment(App.Vector(-17.665577, -28.526434, 0), App.Vector(-20.349193, -26.828926, 0)),
    Part.LineSegment(App.Vector(-20.349193, -26.828926, 0), App.Vector(-20.220916, -23.656091, 0)),
    Part.LineSegment(App.Vector(-20.220916, -23.656091, 0), App.Vector(-17.409022, -22.180766, 0)),
    Part.LineSegment(App.Vector(-17.409022, -22.180766, 0), App.Vector(-14.725405, -23.878274, 0)),
], False)
sketch16.addConstraint([
    Sketcher.Constraint("Coincident", 0, 2, 1, 1),
    Sketcher.Constraint("Coincident", 1, 2, 2, 1),
    Sketcher.Constraint("Coincident", 2, 2, 3, 1),
    Sketcher.Constraint("Coincident", 3, 2, 4, 1),
    Sketcher.Constraint("Coincident", 4, 2, 5, 1),
    Sketcher.Constraint("Coincident", 5, 2, 0, 1),
    Sketcher.Constraint("Coincident", 6, 2, 7, 1),
    Sketcher.Constraint("Coincident", 7, 2, 8, 1),
    Sketcher.Constraint("Coincident", 8, 2, 9, 1),
    Sketcher.Constraint("Coincident", 9, 2, 10, 1),
    Sketcher.Constraint("Coincident", 10, 2, 11, 1),
    Sketcher.Constraint("Coincident", 11, 2, 6, 1),
    Sketcher.Constraint("Coincident", 12, 2, 13, 1),
    Sketcher.Constraint("Coincident", 13, 2, 14, 1),
    Sketcher.Constraint("Coincident", 14, 2, 15, 1),
    Sketcher.Constraint("Coincident", 15, 2, 16, 1),
    Sketcher.Constraint("Coincident", 16, 2, 17, 1),
    Sketcher.Constraint("Coincident", 17, 2, 12, 1),
    Sketcher.Constraint("Coincident", 18, 2, 19, 1),
    Sketcher.Constraint("Coincident", 19, 2, 20, 1),
    Sketcher.Constraint("Coincident", 20, 2, 21, 1),
    Sketcher.Constraint("Coincident", 21, 2, 22, 1),
    Sketcher.Constraint("Coincident", 22, 2, 23, 1),
    Sketcher.Constraint("Coincident", 23, 2, 18, 1),
    Sketcher.Constraint("Coincident", 24, 2, 25, 1),
    Sketcher.Constraint("Coincident", 25, 2, 26, 1),
    Sketcher.Constraint("Coincident", 26, 2, 27, 1),
    Sketcher.Constraint("Coincident", 27, 2, 28, 1),
    Sketcher.Constraint("Coincident", 28, 2, 29, 1),
    Sketcher.Constraint("Coincident", 29, 2, 24, 1),
    Sketcher.Constraint("Vertical", 0),
    Sketcher.Constraint("Vertical", 3),
    Sketcher.Constraint("Vertical", 8),
    Sketcher.Constraint("Vertical", 11),
    Sketcher.Constraint("Parallel", 1, 4),
    Sketcher.Constraint("Parallel", 2, 5),
    Sketcher.Constraint("Parallel", 4, 6),
    Sketcher.Constraint("Parallel", 5, 7),
    Sketcher.Constraint("Parallel", 6, 9),
    Sketcher.Constraint("Parallel", 7, 10),
    Sketcher.Constraint("Parallel", 12, 15),
    Sketcher.Constraint("Parallel", 13, 16),
    Sketcher.Constraint("Parallel", 14, 17),
    Sketcher.Constraint("Parallel", 18, 21),
    Sketcher.Constraint("Parallel", 19, 22),
    Sketcher.Constraint("Parallel", 20, 23),
    Sketcher.Constraint("Parallel", 24, 27),
    Sketcher.Constraint("Parallel", 25, 28),
    Sketcher.Constraint("Parallel", 26, 29),
    Sketcher.Constraint("Horizontal", 0, 2, 2, 2),
    Sketcher.Constraint("Horizontal", 3, 2, 5, 2),
    Sketcher.Constraint("Horizontal", 8, 2, 10, 2),
    Sketcher.Constraint("Horizontal", 7, 2, 11, 2),
    Sketcher.Constraint("Vertical", 1, 2, 4, 2),
    Sketcher.Constraint("Vertical", 4, 2, 6, 2),
    Sketcher.Constraint("Vertical", 3, 2, 7, 2),
    Sketcher.Constraint("Equal", 3, 8),
    Sketcher.Constraint("Equal", 10, 12),
    Sketcher.Constraint("Equal", 12, 13),
    Sketcher.Constraint("Equal", 13, 14),
    Sketcher.Constraint("Equal", 14, 15),
    Sketcher.Constraint("Equal", 17, 18),
    Sketcher.Constraint("Equal", 18, 19),
    Sketcher.Constraint("Equal", 19, 20),
    Sketcher.Constraint("Equal", 20, 21),
    Sketcher.Constraint("Equal", 23, 24),
    Sketcher.Constraint("Equal", 24, 25),
    Sketcher.Constraint("Equal", 25, 26),
    Sketcher.Constraint("Equal", 26, 27),
    Sketcher.Constraint("Angle", 1, Q("-150 deg")),
    Sketcher.Constraint("DistanceY", 6, 2, 1, 2, Q("12 mm")),
    Sketcher.Constraint("DistanceX", 2, 2, 0, 2, Q("5.5 mm")),
    Sketcher.Constraint("DistanceY", 14, 2, 16, 2, Q("1.1 mm")),
    Sketcher.Constraint("DistanceY", 20, 2, 22, 2, Q("3.124 mm")),
    Sketcher.Constraint("DistanceX", 21, 2, -1, 1, Q("27.994499 mm")),
    Sketcher.Constraint("DistanceY", 18, 2, 16, 2, Q("15.759102 mm")),
    Sketcher.Constraint("DistanceY", 19, 2, 17, 2, Q("12.903098 mm")),
    Sketcher.Constraint("DistanceY", 18, 2, 20, 2, Q("2.3582 mm")),
    Sketcher.Constraint("DistanceX", 20, 2, 23, 2, Q("6.330299 mm")),
    Sketcher.Constraint("DistanceY", 25, 2, 23, 2, Q("11.741701 mm")),
    Sketcher.Constraint("DistanceX", 18, 2, 27, 2, Q("4.166299 mm")),
    Sketcher.Constraint("DistanceY", 28, 2, 18, 2, Q("2.527299 mm")),
    Sketcher.Constraint("DistanceY", 0, 2, 0, 1, Q("3.175426 mm")),
    Sketcher.Constraint("DistanceX", 12, 2, -1, 1, Q("30.258792 mm")),
    Sketcher.Constraint("DistanceY", 12, 2, -1, 1, Q("9.11127 mm")),
    Sketcher.Constraint("DistanceX", 14, 2, -1, 1, Q("33.905858 mm")),
    Sketcher.Constraint("DistanceY", 24, 2, -1, 1, Q("27.051109 mm")),
    Sketcher.Constraint("DistanceY", 13, 2, 6, 2, Q("10.930208 mm")),
    Sketcher.Constraint("DistanceX", 14, 2, 6, 2, Q("3.011981 mm")),
    Sketcher.Constraint("DistanceX", 18, 2, 24, 2, Q("9.533532 mm")),
])
pocket13 = body.newObject("PartDesign::Pocket", "Pocket012")
pocket13.Profile = sketch16
pocket13.setExpression("Length", "Params.pocket13_length")
pocket13.Reversed = True

doc.recompute()
